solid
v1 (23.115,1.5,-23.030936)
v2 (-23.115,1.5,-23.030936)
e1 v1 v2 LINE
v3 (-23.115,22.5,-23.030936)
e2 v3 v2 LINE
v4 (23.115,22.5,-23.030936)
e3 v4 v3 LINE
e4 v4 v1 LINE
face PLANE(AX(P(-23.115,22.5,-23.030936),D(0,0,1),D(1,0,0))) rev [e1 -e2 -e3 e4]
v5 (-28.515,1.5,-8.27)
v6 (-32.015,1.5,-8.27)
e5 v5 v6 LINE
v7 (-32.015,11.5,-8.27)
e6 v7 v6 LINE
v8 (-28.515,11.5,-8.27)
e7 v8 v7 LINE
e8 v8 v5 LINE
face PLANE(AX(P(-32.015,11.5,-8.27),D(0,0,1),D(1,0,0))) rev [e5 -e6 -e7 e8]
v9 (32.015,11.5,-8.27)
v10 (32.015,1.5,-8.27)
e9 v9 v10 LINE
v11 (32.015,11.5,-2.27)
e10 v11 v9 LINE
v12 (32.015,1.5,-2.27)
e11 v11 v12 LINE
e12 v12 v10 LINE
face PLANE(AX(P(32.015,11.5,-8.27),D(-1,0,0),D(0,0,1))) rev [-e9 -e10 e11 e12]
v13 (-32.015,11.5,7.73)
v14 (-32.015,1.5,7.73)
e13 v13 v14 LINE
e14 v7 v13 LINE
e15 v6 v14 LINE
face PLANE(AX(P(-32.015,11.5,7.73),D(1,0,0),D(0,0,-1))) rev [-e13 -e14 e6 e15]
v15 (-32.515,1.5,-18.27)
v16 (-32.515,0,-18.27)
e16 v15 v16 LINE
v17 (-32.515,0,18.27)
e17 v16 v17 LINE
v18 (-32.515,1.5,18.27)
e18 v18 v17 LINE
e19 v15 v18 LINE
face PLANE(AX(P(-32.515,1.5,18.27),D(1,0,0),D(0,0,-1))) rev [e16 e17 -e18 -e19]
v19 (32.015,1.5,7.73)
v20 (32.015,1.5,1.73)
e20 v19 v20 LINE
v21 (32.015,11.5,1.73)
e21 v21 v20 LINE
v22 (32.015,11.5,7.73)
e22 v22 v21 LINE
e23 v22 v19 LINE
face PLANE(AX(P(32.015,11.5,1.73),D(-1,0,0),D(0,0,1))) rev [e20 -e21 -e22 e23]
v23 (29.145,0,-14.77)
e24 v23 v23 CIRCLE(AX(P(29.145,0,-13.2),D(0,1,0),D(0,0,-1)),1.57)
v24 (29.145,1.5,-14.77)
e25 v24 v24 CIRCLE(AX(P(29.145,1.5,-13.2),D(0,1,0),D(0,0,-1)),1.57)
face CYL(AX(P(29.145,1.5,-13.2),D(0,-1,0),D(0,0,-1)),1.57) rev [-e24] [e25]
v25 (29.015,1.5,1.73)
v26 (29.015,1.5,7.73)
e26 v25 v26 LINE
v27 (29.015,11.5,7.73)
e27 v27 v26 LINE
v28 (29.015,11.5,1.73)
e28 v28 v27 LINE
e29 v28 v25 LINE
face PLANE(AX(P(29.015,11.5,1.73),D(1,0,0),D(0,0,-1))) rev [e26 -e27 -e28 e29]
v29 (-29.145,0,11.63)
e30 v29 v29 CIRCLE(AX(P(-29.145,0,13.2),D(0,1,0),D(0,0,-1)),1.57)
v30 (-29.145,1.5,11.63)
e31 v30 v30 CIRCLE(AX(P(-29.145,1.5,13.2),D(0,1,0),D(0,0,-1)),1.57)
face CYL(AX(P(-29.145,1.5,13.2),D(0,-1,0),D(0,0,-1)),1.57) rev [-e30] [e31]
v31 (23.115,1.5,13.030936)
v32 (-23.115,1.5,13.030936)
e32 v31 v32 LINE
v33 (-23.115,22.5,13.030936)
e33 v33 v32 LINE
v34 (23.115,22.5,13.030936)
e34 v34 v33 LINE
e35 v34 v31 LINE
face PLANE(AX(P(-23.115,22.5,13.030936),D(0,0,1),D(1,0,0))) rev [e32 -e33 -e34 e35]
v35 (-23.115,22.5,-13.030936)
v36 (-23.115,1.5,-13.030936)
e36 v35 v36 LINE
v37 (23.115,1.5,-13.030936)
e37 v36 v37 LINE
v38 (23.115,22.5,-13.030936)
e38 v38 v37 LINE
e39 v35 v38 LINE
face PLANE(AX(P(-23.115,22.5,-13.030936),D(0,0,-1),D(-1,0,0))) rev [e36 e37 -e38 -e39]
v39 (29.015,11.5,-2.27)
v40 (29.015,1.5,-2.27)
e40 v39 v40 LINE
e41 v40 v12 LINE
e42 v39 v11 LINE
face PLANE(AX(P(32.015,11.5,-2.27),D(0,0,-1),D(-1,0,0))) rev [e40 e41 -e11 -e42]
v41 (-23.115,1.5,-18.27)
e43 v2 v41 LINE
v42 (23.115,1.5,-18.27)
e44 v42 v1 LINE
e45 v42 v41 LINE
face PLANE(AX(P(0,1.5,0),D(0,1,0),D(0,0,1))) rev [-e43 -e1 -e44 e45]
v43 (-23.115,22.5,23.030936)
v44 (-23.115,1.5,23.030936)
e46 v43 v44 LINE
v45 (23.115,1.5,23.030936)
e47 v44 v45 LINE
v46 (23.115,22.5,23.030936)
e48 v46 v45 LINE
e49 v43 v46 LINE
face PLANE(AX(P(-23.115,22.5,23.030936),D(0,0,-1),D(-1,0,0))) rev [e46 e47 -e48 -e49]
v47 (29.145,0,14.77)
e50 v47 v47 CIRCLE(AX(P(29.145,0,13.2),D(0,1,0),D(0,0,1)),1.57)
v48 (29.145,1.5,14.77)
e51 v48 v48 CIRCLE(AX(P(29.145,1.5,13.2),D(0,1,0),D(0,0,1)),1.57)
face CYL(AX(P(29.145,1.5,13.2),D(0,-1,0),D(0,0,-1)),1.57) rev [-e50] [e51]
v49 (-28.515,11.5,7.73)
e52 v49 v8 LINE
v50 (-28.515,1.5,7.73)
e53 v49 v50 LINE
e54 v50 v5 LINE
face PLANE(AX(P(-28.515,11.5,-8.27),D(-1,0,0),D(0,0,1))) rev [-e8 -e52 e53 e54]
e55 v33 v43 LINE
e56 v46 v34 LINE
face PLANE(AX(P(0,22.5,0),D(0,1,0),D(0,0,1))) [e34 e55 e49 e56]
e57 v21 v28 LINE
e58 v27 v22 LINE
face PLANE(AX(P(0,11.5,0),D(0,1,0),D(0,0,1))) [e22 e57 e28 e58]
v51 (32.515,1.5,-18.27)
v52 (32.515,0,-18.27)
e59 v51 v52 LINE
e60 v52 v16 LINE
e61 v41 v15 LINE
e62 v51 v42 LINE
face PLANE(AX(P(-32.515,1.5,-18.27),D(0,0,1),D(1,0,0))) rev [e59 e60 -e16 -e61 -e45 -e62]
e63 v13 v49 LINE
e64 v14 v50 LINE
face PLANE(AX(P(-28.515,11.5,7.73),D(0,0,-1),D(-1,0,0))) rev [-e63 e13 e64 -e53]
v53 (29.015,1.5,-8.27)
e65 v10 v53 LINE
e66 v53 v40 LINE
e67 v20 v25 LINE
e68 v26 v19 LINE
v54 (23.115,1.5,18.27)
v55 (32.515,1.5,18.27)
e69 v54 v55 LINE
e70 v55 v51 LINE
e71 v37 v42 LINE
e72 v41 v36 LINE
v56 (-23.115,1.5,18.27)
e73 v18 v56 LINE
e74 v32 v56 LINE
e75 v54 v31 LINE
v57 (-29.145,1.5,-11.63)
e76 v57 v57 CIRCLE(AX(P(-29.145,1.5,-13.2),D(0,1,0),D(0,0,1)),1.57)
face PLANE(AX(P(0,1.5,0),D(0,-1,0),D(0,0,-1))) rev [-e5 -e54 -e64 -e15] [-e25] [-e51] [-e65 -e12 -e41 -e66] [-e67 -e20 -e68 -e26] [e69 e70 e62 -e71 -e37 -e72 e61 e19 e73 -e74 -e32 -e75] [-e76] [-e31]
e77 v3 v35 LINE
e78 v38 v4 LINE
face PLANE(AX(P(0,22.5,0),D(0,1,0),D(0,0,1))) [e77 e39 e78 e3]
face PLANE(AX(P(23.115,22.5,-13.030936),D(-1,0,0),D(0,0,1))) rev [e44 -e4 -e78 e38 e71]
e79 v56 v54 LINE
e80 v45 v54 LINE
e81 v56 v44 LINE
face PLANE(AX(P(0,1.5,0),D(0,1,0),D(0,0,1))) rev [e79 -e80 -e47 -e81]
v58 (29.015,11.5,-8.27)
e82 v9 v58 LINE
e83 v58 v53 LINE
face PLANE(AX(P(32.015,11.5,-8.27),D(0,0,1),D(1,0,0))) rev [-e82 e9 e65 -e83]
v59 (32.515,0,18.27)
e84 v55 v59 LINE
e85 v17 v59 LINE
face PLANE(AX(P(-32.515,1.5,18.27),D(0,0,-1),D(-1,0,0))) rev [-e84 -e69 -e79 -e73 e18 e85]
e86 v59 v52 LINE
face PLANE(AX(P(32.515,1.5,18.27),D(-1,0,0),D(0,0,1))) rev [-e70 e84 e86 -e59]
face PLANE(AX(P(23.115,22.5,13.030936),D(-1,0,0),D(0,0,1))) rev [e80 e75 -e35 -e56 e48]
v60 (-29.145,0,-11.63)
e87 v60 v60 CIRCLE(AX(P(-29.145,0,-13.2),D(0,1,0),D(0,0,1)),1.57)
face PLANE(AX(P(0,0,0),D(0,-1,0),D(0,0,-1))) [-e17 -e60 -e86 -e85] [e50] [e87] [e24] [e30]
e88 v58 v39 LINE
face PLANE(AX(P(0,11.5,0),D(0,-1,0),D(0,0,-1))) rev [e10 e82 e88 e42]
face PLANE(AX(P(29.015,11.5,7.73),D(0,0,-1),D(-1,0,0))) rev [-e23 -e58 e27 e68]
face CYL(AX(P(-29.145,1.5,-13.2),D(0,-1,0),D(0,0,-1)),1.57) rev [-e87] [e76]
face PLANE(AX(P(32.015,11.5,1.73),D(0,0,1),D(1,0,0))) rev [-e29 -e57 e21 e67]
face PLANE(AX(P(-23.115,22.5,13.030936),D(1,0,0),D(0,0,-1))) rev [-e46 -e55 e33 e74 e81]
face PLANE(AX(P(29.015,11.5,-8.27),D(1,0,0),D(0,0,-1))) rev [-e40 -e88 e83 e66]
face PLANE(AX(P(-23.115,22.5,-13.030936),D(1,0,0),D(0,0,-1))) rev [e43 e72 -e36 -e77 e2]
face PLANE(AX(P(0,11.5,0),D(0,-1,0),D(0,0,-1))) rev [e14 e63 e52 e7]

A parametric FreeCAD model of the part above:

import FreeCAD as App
import Part
import Sketcher
from FreeCAD import Vector


def add_polygon(sketch, points):
    """Adds a closed chain of lines whose ends are joined by coincident constraints."""
    first, n = sketch.GeometryCount, len(points)
    for a, b in zip(points, points[1:] + points[:1]):
        sketch.addGeometry(Part.LineSegment(App.Vector(*a, 0), App.Vector(*b, 0)), False)
    for i in range(n):
        sketch.addConstraint(Sketcher.Constraint("Coincident", first + i, 2, first + (i + 1) % n, 1))

doc = App.newDocument("Part")
body = doc.addObject("PartDesign::Body", "Body")

sketch1 = body.newObject("Sketcher::SketchObject", "Sketch")
sketch1.AttachmentSupport = (doc.getObject("XZ_Plane"), [""])
sketch1.MapMode = "FlatFace"
add_polygon(sketch1, [(-32.5, -18.3), (-32.5, 18.3), (32.5, 18.3), (32.5, -18.3)])
sketch1.addGeometry(Part.Circle(Vector(-29.1, 13.2, 0), Vector(0, 0, 1), 1.6), False)
sketch1.addGeometry(Part.Circle(Vector(29.1, 13.2, 0), Vector(0, 0, 1), 1.6), False)
sketch1.addGeometry(Part.Circle(Vector(-29.1, -13.2, 0), Vector(0, 0, 1), 1.6), False)
sketch1.addGeometry(Part.Circle(Vector(29.1, -13.2, 0), Vector(0, 0, 1), 1.6), False)
sketch1.addConstraint(Sketcher.Constraint("Vertical", 0))
sketch1.addConstraint(Sketcher.Constraint("Horizontal", 1))
sketch1.addConstraint(Sketcher.Constraint("Vertical", 2))
sketch1.addConstraint(Sketcher.Constraint("Horizontal", 3))
sketch1.addConstraint(Sketcher.Constraint("Equal", 4, 5))
sketch1.addConstraint(Sketcher.Constraint("Equal", 5, 6))
sketch1.addConstraint(Sketcher.Constraint("Equal", 6, 7))
sketch1.addConstraint(Sketcher.Constraint("Symmetric", 5, 3, 6, 3, -1, 1))
sketch1.addConstraint(Sketcher.Constraint("Symmetric", 4, 3, 7, 3, -1, 1))
sketch1.addConstraint(Sketcher.Constraint("Symmetric", 0, 2, 2, 2, -1, 1))
sketch1.addConstraint(Sketcher.Constraint("Symmetric", 4, 3, 5, 3, -2))
sketch1.addConstraint(Sketcher.Constraint("Diameter", 4, 3.14))
sketch1.addConstraint(Sketcher.Constraint("DistanceX", 1, 1, 1, 2, 65.03))
sketch1.addConstraint(Sketcher.Constraint("DistanceY", 0, 1, 0, 2, 36.54))
sketch1.addConstraint(Sketcher.Constraint("DistanceY", -1, 1, 4, 3, 13.2))
sketch1.addConstraint(Sketcher.Constraint("DistanceX", 4, 3, 5, 3, 58.29))
pad1 = body.newObject("PartDesign::Pad", "Pad")
pad1.Profile = sketch1
pad1.Length = 1.5
pad1.Reversed = True

sketch2 = body.newObject("Sketcher::SketchObject", "Sketch001")
sketch2.AttachmentSupport = (doc.getObject("XZ_Plane"), [""])
sketch2.MapMode = "FlatFace"
sketch2.AttachmentOffset = App.Placement(Vector(0, 0, -1.5), App.Rotation())
add_polygon(sketch2, [(29, 1.7), (29, 7.7), (32, 7.7), (32, 1.7)])
add_polygon(sketch2, [(-32, -8.3), (-32, 7.7), (-28.5, 7.7), (-28.5, -8.3)])
add_polygon(sketch2, [(29, -8.3), (29, -2.3), (32, -2.3), (32, -8.3)])
sketch2.addConstraint(Sketcher.Constraint("Vertical", 0))
sketch2.addConstraint(Sketcher.Constraint("Horizontal", 1))
sketch2.addConstraint(Sketcher.Constraint("Vertical", 2))
sketch2.addConstraint(Sketcher.Constraint("Horizontal", 3))
sketch2.addConstraint(Sketcher.Constraint("Vertical", 4))
sketch2.addConstraint(Sketcher.Constraint("Horizontal", 5))
sketch2.addConstraint(Sketcher.Constraint("Vertical", 6))
sketch2.addConstraint(Sketcher.Constraint("Horizontal", 7))
sketch2.addConstraint(Sketcher.Constraint("Vertical", 8))
sketch2.addConstraint(Sketcher.Constraint("Horizontal", 9))
sketch2.addConstraint(Sketcher.Constraint("Vertical", 10))
sketch2.addConstraint(Sketcher.Constraint("Horizontal", 11))
sketch2.addConstraint(Sketcher.Constraint("Symmetric", 1, 2, 4, 2, -2))
sketch2.addConstraint(Sketcher.Constraint("Symmetric", 7, 2, 10, 2, -2))
sketch2.addConstraint(Sketcher.Constraint("Vertical", 3, 2, 8, 2))
sketch2.addConstraint(Sketcher.Constraint("Equal", 2, 8))
sketch2.addConstraint(Sketcher.Constraint("DistanceX", 1, 1, 1, 2, 3.0))
sketch2.addConstraint(Sketcher.Constraint("DistanceY", 0, 1, 0, 2, 6.0))
sketch2.addConstraint(Sketcher.Constraint("DistanceY", 4, 1, 4, 2, 16.0))
sketch2.addConstraint(Sketcher.Constraint("DistanceX", 5, 1, 5, 2, 3.5))
sketch2.addConstraint(Sketcher.Constraint("DistanceY", -1, 1, 0, 2, 7.73))
sketch2.addConstraint(Sketcher.Constraint("DistanceX", 4, 2, 0, 2, 61.03))
pad2 = body.newObject("PartDesign::Pad", "Pad001")
pad2.Profile = sketch2
pad2.Length = 10
pad2.Reversed = True

sketch3 = body.newObject("Sketcher::SketchObject", "Sketch002")
sketch3.AttachmentSupport = (doc.getObject("XZ_Plane"), [""])
sketch3.MapMode = "FlatFace"
sketch3.AttachmentOffset = App.Placement(Vector(0, 0, -1.5), App.Rotation())
add_polygon(sketch3, [(-23, 13), (-23, 23), (23, 23), (23, 13)])
add_polygon(sketch3, [(-23, -23), (-23, -13), (23, -13), (23, -23)])
sketch3.addConstraint(Sketcher.Constraint("Vertical", 0))
sketch3.addConstraint(Sketcher.Constraint("Horizontal", 1))
sketch3.addConstraint(Sketcher.Constraint("Vertical", 2))
sketch3.addConstraint(Sketcher.Constraint("Horizontal", 3))
sketch3.addConstraint(Sketcher.Constraint("Vertical", 4))
sketch3.addConstraint(Sketcher.Constraint("Horizontal", 5))
sketch3.addConstraint(Sketcher.Constraint("Vertical", 6))
sketch3.addConstraint(Sketcher.Constraint("Horizontal", 7))
sketch3.addConstraint(Sketcher.Constraint("Symmetric", 2, 2, 4, 2, -1, 1))
sketch3.addConstraint(Sketcher.Constraint("Symmetric", 0, 2, 6, 2, -1, 1))
sketch3.addConstraint(Sketcher.Constraint("Vertical", 3, 2, 4, 2))
sketch3.addConstraint(Sketcher.Constraint("DistanceY", 0, 1, 0, 2, 10.0))
sketch3.addConstraint(Sketcher.Constraint("DistanceX", 1, 1, 1, 2, 46.23))
sketch3.addConstraint(Sketcher.Constraint("DistanceY", -1, 1, 0, 2, 23.030936))
pad3 = body.newObject("PartDesign::Pad", "Pad002")
pad3.Profile = sketch3
pad3.Length = 21
pad3.Reversed = True

doc.recompute()
